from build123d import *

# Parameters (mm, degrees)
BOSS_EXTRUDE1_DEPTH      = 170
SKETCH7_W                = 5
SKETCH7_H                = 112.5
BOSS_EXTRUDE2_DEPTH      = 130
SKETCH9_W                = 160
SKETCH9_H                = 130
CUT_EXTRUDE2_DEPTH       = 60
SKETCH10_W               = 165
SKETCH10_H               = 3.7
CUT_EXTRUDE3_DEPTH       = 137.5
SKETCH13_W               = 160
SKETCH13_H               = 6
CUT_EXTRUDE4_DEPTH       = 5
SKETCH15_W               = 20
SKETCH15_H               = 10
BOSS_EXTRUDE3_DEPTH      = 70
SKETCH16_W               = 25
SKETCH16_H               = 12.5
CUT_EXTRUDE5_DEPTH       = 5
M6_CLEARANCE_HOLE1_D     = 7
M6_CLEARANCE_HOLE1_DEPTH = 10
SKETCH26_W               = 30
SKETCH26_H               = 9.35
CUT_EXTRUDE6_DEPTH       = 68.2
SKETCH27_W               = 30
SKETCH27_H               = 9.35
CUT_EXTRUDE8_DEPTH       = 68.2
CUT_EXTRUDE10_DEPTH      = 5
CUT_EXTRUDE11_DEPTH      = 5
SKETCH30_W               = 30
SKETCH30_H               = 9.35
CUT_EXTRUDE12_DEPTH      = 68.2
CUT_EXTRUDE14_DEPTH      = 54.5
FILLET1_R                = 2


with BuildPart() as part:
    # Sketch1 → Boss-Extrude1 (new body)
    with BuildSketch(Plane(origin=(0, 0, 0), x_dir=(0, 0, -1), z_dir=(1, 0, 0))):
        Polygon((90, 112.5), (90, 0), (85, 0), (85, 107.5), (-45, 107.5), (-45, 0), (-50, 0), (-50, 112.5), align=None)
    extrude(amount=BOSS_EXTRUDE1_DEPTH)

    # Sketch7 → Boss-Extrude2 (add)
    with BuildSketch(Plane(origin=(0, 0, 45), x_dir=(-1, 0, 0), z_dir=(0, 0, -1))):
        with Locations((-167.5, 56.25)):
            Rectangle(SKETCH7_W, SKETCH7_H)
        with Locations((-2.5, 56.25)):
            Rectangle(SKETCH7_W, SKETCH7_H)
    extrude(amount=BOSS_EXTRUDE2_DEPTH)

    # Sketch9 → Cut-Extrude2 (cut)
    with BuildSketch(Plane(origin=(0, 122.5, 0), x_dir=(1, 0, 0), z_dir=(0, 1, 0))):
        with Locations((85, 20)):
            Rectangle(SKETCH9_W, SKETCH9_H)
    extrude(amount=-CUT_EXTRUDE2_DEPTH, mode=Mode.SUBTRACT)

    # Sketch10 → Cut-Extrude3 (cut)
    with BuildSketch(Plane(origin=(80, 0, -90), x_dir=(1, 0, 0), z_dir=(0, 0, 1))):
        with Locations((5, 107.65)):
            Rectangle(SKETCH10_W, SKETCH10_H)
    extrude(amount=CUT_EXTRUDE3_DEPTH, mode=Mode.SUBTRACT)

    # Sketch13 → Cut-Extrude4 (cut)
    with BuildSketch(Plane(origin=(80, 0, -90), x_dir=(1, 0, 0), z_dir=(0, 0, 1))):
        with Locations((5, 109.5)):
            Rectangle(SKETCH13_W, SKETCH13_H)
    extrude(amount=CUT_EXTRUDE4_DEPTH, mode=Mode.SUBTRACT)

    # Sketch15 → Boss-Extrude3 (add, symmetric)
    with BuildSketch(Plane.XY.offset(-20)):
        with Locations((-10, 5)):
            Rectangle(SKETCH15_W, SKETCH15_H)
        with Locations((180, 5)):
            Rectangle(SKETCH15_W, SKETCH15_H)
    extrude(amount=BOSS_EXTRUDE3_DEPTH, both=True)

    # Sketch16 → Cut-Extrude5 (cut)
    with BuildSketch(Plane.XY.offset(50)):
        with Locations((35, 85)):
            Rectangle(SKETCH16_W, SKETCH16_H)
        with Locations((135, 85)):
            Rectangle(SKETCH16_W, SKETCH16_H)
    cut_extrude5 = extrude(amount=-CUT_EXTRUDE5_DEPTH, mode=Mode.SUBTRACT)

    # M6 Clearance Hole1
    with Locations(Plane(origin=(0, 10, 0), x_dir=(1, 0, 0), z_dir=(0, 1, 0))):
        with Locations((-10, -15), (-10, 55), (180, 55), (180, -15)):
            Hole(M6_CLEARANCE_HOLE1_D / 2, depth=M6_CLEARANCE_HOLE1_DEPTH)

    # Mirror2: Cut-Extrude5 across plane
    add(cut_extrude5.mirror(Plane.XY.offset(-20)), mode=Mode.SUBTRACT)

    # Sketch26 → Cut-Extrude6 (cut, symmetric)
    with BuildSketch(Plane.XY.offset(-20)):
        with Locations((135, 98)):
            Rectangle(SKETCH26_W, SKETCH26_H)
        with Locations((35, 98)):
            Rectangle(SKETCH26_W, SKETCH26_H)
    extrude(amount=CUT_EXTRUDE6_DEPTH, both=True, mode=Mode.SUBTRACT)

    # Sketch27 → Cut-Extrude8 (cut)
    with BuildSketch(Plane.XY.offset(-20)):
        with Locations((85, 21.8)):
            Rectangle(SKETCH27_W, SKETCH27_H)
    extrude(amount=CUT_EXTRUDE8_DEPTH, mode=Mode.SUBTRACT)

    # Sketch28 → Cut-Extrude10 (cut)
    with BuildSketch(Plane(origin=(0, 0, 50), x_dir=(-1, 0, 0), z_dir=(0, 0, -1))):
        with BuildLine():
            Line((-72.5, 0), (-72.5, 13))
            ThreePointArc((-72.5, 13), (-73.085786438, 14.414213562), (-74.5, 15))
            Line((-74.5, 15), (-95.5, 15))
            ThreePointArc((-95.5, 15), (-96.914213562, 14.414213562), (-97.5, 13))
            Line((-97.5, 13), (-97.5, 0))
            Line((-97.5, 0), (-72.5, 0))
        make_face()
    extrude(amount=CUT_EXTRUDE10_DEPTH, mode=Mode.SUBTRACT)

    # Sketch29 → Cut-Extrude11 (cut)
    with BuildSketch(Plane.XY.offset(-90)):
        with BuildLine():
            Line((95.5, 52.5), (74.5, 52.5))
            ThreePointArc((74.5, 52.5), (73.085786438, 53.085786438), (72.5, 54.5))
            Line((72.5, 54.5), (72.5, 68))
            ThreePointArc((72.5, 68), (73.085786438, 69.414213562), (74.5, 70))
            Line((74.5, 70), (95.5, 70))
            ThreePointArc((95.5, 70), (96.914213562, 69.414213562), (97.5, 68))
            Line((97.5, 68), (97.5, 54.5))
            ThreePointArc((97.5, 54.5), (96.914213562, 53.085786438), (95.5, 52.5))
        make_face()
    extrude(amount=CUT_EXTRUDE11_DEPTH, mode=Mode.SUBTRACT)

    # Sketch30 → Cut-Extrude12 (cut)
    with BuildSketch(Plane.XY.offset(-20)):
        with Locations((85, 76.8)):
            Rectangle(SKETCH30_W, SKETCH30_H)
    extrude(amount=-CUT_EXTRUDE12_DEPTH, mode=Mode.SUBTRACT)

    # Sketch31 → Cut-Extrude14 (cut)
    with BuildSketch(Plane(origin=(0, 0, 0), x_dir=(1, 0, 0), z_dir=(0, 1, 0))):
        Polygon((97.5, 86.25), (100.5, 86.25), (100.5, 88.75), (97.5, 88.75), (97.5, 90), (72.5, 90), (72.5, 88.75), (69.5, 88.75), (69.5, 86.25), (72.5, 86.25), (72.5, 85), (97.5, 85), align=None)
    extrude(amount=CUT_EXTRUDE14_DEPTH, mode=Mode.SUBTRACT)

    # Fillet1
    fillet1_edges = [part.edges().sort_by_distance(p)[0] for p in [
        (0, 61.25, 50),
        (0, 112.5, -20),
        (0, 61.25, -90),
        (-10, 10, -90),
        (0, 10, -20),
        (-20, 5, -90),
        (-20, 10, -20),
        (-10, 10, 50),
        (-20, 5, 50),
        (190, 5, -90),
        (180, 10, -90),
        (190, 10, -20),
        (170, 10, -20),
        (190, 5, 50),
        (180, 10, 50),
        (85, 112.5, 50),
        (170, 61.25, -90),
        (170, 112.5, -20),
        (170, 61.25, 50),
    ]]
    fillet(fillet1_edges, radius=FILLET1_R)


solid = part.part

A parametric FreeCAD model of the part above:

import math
import FreeCAD as App
import Part
import Sketcher
Q = App.Units.Quantity


def edges_at(feature, points):
    """Names of the edges that pass closest to the given points."""
    edges = feature.Shape.Edges
    near = lambda p: min(range(len(edges)), key=lambda i: edges[i].distToShape(Part.Vertex(*p))[0])
    return sorted({f"Edge{near(p) + 1}" for p in points})

doc = App.newDocument("Part")
body = doc.addObject("PartDesign::Body", "Body")

# Sketch on YZ plane
sketch1 = doc.addObject("Sketcher::SketchObject", "Sketch")
body.addObject(sketch1)
sketch1.AttachmentSupport = (doc.YZ_Plane, [""])
sketch1.MapMode = "FlatFace"
sketch1.addGeometry([
    Part.LineSegment(App.Vector(0, -90, 0), App.Vector(112, -90, 0)),  # 0
    Part.LineSegment(App.Vector(112, -90, 0), App.Vector(112, 50, 0)),  # 1
    Part.LineSegment(App.Vector(112, 50, 0), App.Vector(0, 50, 0)),  # 2
    Part.LineSegment(App.Vector(0, 50, 0), App.Vector(0, 45, 0)),  # 3
    Part.LineSegment(App.Vector(0, 45, 0), App.Vector(108, 45, 0)),  # 4
    Part.LineSegment(App.Vector(108, 45, 0), App.Vector(108, -85, 0)),  # 5
    Part.LineSegment(App.Vector(108, -85, 0), App.Vector(0, -85, 0)),  # 6
    Part.LineSegment(App.Vector(0, -85, 0), App.Vector(0, -90, 0)),  # 7
], False)
sketch1.addConstraint([
    Sketcher.Constraint("Coincident", 0, 2, 1, 1),
    Sketcher.Constraint("Coincident", 1, 2, 2, 1),
    Sketcher.Constraint("Coincident", 2, 2, 3, 1),
    Sketcher.Constraint("Coincident", 3, 2, 4, 1),
    Sketcher.Constraint("Coincident", 4, 2, 5, 1),
    Sketcher.Constraint("Coincident", 5, 2, 6, 1),
    Sketcher.Constraint("Coincident", 6, 2, 7, 1),
    Sketcher.Constraint("Coincident", 7, 2, 0, 1),
    Sketcher.Constraint("Horizontal", 0),
    Sketcher.Constraint("Vertical", 1),
    Sketcher.Constraint("Horizontal", 2),
    Sketcher.Constraint("Vertical", 3),
    Sketcher.Constraint("Horizontal", 4),
    Sketcher.Constraint("Vertical", 5),
    Sketcher.Constraint("Horizontal", 6),
    Sketcher.Constraint("Vertical", 7),
    Sketcher.Constraint("PointOnObject", 2, 2, -2),
    Sketcher.Constraint("PointOnObject", 6, 2, -2),
    Sketcher.Constraint("Equal", 3, 7),
    Sketcher.Constraint("DistanceY", 1, 1, 1, 2, Q("140 mm")),
    Sketcher.Constraint("DistanceY", 3, 2, 3, 1, Q("5 mm")),
    Sketcher.Constraint("DistanceX", 0, 1, 0, 2, Q("112.5 mm")),
    Sketcher.Constraint("DistanceX", 4, 1, 4, 2, Q("107.5 mm")),
    Sketcher.Constraint("DistanceY", 0, 2, -1, 1, Q("90 mm")),
])
pad1 = doc.addObject("PartDesign::Pad", "Pad")
body.addObject(pad1)
pad1.Profile = sketch1
pad1.Length = 170

# Sketch on XY plane
sketch2 = doc.addObject("Sketcher::SketchObject", "Sketch001")
body.addObject(sketch2)
sketch2.AttachmentSupport = (doc.XY_Plane, [""])
sketch2.MapMode = "FlatFace"
sketch2.AttachmentOffset = App.Placement(App.Vector(0, 0, 45), App.Rotation())
sketch2.addGeometry([
    Part.LineSegment(App.Vector(170, 112, 0), App.Vector(170, 0, 0)),  # 0
    Part.LineSegment(App.Vector(170, 0, 0), App.Vector(165, 0, 0)),  # 1
    Part.LineSegment(App.Vector(165, 0, 0), App.Vector(165, 112, 0)),  # 2
    Part.LineSegment(App.Vector(165, 112, 0), App.Vector(170, 112, 0)),  # 3
    Part.LineSegment(App.Vector(5, 112, 0), App.Vector(5, 0, 0)),  # 4
    Part.LineSegment(App.Vector(5, 0, 0), App.Vector(0, 0, 0)),  # 5
    Part.LineSegment(App.Vector(0, 0, 0), App.Vector(0, 112, 0)),  # 6
    Part.LineSegment(App.Vector(0, 112, 0), App.Vector(5, 112, 0)),  # 7
], False)
sketch2.addConstraint([
    Sketcher.Constraint("Coincident", 0, 2, 1, 1),
    Sketcher.Constraint("Coincident", 1, 2, 2, 1),
    Sketcher.Constraint("Coincident", 2, 2, 3, 1),
    Sketcher.Constraint("Coincident", 3, 2, 0, 1),
    Sketcher.Constraint("Coincident", 4, 2, 5, 1),
    Sketcher.Constraint("Coincident", 5, 2, 6, 1),
    Sketcher.Constraint("Coincident", 6, 2, 7, 1),
    Sketcher.Constraint("Coincident", 7, 2, 4, 1),
    Sketcher.Constraint("Vertical", 0),
    Sketcher.Constraint("Horizontal", 1),
    Sketcher.Constraint("Vertical", 2),
    Sketcher.Constraint("Horizontal", 3),
    Sketcher.Constraint("Vertical", 4),
    Sketcher.Constraint("Horizontal", 5),
    Sketcher.Constraint("Vertical", 6),
    Sketcher.Constraint("Horizontal", 7),
    Sketcher.Constraint("Coincident", 5, 2, -1, 1),
    Sketcher.Constraint("PointOnObject", 0, 2, -1),
    Sketcher.Constraint("Horizontal", 3, 2, 6, 2),
    Sketcher.Constraint("Equal", 3, 5),
    Sketcher.Constraint("DistanceX", 1, 2, 1, 1, Q("5 mm")),
    Sketcher.Constraint("DistanceY", 0, 2, 0, 1, Q("112.5 mm")),
    Sketcher.Constraint("DistanceX", -1, 1, 0, 2, Q("170 mm")),
])
pad2 = doc.addObject("PartDesign::Pad", "Pad001")
body.addObject(pad2)
pad2.Profile = sketch2
pad2.Length = 130
pad2.Reversed = True

# Sketch on XZ plane
sketch3 = doc.addObject("Sketcher::SketchObject", "Sketch002")
body.addObject(sketch3)
sketch3.AttachmentSupport = (doc.XZ_Plane, [""])
sketch3.MapMode = "FlatFace"
sketch3.AttachmentOffset = App.Placement(App.Vector(0, 0, -122.5), App.Rotation())
sketch3.addGeometry([
    Part.LineSegment(App.Vector(5, -85, 0), App.Vector(5, 45, 0)),
    Part.LineSegment(App.Vector(5, 45, 0), App.Vector(165, 45, 0)),
    Part.LineSegment(App.Vector(165, 45, 0), App.Vector(165, -85, 0)),
    Part.LineSegment(App.Vector(165, -85, 0), App.Vector(5, -85, 0)),
], False)
sketch3.addConstraint([
    Sketcher.Constraint("Coincident", 0, 2, 1, 1),
    Sketcher.Constraint("Coincident", 1, 2, 2, 1),
    Sketcher.Constraint("Coincident", 2, 2, 3, 1),
    Sketcher.Constraint("Coincident", 3, 2, 0, 1),
    Sketcher.Constraint("Vertical", 0),
    Sketcher.Constraint("Horizontal", 1),
    Sketcher.Constraint("Vertical", 2),
    Sketcher.Constraint("Horizontal", 3),
    Sketcher.Constraint("DistanceX", 1, 1, 1, 2, Q("160 mm")),
    Sketcher.Constraint("DistanceY", 0, 1, 0, 2, Q("130 mm")),
    Sketcher.Constraint("DistanceX", -1, 1, 0, 2, Q("5 mm")),
    Sketcher.Constraint("DistanceY", -1, 1, 0, 2, Q("45 mm")),
])
pocket1 = doc.addObject("PartDesign::Pocket", "Pocket")
body.addObject(pocket1)
pocket1.Profile = sketch3
pocket1.Length = 60
pocket1.Reversed = True

# Sketch on XY plane
sketch4 = doc.addObject("Sketcher::SketchObject", "Sketch003")
body.addObject(sketch4)
sketch4.AttachmentSupport = (doc.XY_Plane, [""])
sketch4.MapMode = "FlatFace"
sketch4.AttachmentOffset = App.Placement(App.Vector(0, 0, -90), App.Rotation())
sketch4.addGeometry([
    Part.LineSegment(App.Vector(2.5, 109.5, 0), App.Vector(2.5, 105.8, 0)),
    Part.LineSegment(App.Vector(2.5, 105.8, 0), App.Vector(167.5, 105.8, 0)),
    Part.LineSegment(App.Vector(167.5, 105.8, 0), App.Vector(167.5, 109.5, 0)),
    Part.LineSegment(App.Vector(167.5, 109.5, 0), App.Vector(2.5, 109.5, 0)),
], False)
sketch4.addConstraint([
    Sketcher.Constraint("Coincident", 0, 2, 1, 1),
    Sketcher.Constraint("Coincident", 1, 2, 2, 1),
    Sketcher.Constraint("Coincident", 2, 2, 3, 1),
    Sketcher.Constraint("Coincident", 3, 2, 0, 1),
    Sketcher.Constraint("Vertical", 0),
    Sketcher.Constraint("Horizontal", 1),
    Sketcher.Constraint("Vertical", 2),
    Sketcher.Constraint("Horizontal", 3),
    Sketcher.Constraint("DistanceX", 1, 1, 1, 2, Q("165 mm")),
    Sketcher.Constraint("DistanceY", 0, 2, 0, 1, Q("3.7 mm")),
    Sketcher.Constraint("DistanceX", -1, 1, 0, 2, Q("2.5 mm")),
    Sketcher.Constraint("DistanceY", -1, 1, 0, 2, Q("105.8 mm")),
])
pocket2 = doc.addObject("PartDesign::Pocket", "Pocket001")
body.addObject(pocket2)
pocket2.Profile = sketch4
pocket2.Length = 137.5
pocket2.Reversed = True

# Sketch on XY plane
sketch5 = doc.addObject("Sketcher::SketchObject", "Sketch004")
body.addObject(sketch5)
sketch5.AttachmentSupport = (doc.XY_Plane, [""])
sketch5.MapMode = "FlatFace"
sketch5.AttachmentOffset = App.Placement(App.Vector(0, 0, -90), App.Rotation())
sketch5.addGeometry([
    Part.LineSegment(App.Vector(5, 112, 0), App.Vector(5, 106, 0)),
    Part.LineSegment(App.Vector(5, 106, 0), App.Vector(165, 106, 0)),
    Part.LineSegment(App.Vector(165, 106, 0), App.Vector(165, 112, 0)),
    Part.LineSegment(App.Vector(165, 112, 0), App.Vector(5, 112, 0)),
], False)
sketch5.addConstraint([
    Sketcher.Constraint("Coincident", 0, 2, 1, 1),
    Sketcher.Constraint("Coincident", 1, 2, 2, 1),
    Sketcher.Constraint("Coincident", 2, 2, 3, 1),
    Sketcher.Constraint("Coincident", 3, 2, 0, 1),
    Sketcher.Constraint("Vertical", 0),
    Sketcher.Constraint("Horizontal", 1),
    Sketcher.Constraint("Vertical", 2),
    Sketcher.Constraint("Horizontal", 3),
    Sketcher.Constraint("DistanceX", 1, 1, 1, 2, Q("160 mm")),
    Sketcher.Constraint("DistanceY", 0, 2, 0, 1, Q("6 mm")),
    Sketcher.Constraint("DistanceX", -1, 1, 0, 2, Q("5 mm")),
    Sketcher.Constraint("DistanceY", -1, 1, 0, 2, Q("106.5 mm")),
])
pocket3 = doc.addObject("PartDesign::Pocket", "Pocket002")
body.addObject(pocket3)
pocket3.Profile = sketch5
pocket3.Length = 5
pocket3.Reversed = True

# Sketch on XY plane
sketch6 = doc.addObject("Sketcher::SketchObject", "Sketch005")
body.addObject(sketch6)
sketch6.AttachmentSupport = (doc.XY_Plane, [""])
sketch6.MapMode = "FlatFace"
sketch6.AttachmentOffset = App.Placement(App.Vector(0, 0, -20), App.Rotation())
sketch6.addGeometry([
    Part.LineSegment(App.Vector(-20, 10, 0), App.Vector(-20, 0, 0)),  # 0
    Part.LineSegment(App.Vector(-20, 0, 0), App.Vector(0, 0, 0)),  # 1
    Part.LineSegment(App.Vector(0, 0, 0), App.Vector(0, 10, 0)),  # 2
    Part.LineSegment(App.Vector(0, 10, 0), App.Vector(-20, 10, 0)),  # 3
    Part.LineSegment(App.Vector(170, 10, 0), App.Vector(170, 0, 0)),  # 4
    Part.LineSegment(App.Vector(170, 0, 0), App.Vector(190, 0, 0)),  # 5
    Part.LineSegment(App.Vector(190, 0, 0), App.Vector(190, 10, 0)),  # 6
    Part.LineSegment(App.Vector(190, 10, 0), App.Vector(170, 10, 0)),  # 7
], False)
sketch6.addConstraint([
    Sketcher.Constraint("Coincident", 0, 2, 1, 1),
    Sketcher.Constraint("Coincident", 1, 2, 2, 1),
    Sketcher.Constraint("Coincident", 2, 2, 3, 1),
    Sketcher.Constraint("Coincident", 3, 2, 0, 1),
    Sketcher.Constraint("Coincident", 4, 2, 5, 1),
    Sketcher.Constraint("Coincident", 5, 2, 6, 1),
    Sketcher.Constraint("Coincident", 6, 2, 7, 1),
    Sketcher.Constraint("Coincident", 7, 2, 4, 1),
    Sketcher.Constraint("Vertical", 0),
    Sketcher.Constraint("Horizontal", 1),
    Sketcher.Constraint("Vertical", 2),
    Sketcher.Constraint("Horizontal", 3),
    Sketcher.Constraint("Vertical", 4),
    Sketcher.Constraint("Horizontal", 5),
    Sketcher.Constraint("Vertical", 6),
    Sketcher.Constraint("Horizontal", 7),
    Sketcher.Constraint("Coincident", 1, 2, -1, 1),
    Sketcher.Constraint("PointOnObject", 4, 2, -1),
    Sketcher.Constraint("Horizontal", 3, 2, 6, 2),
    Sketcher.Constraint("Equal", 3, 5),
    Sketcher.Constraint("DistanceX", 1, 1, 1, 2, Q("20 mm")),
    Sketcher.Constraint("DistanceY", 0, 2, 0, 1, Q("10 mm")),
    Sketcher.Constraint("DistanceX", -1, 1, 4, 2, Q("170 mm")),
])
pad3 = doc.addObject("PartDesign::Pad", "Pad002")
body.addObject(pad3)
pad3.Profile = sketch6
pad3.Length = 140
pad3.Midplane = True

# Sketch on XY plane
sketch7 = doc.addObject("Sketcher::SketchObject", "Sketch006")
body.addObject(sketch7)
sketch7.AttachmentSupport = (doc.XY_Plane, [""])
sketch7.MapMode = "FlatFace"
sketch7.AttachmentOffset = App.Placement(App.Vector(0, 0, 50), App.Rotation())
sketch7.addGeometry([
    Part.LineSegment(App.Vector(22, 91, 0), App.Vector(22, 79, 0)),  # 0
    Part.LineSegment(App.Vector(22, 79, 0), App.Vector(48, 79, 0)),  # 1
    Part.LineSegment(App.Vector(48, 79, 0), App.Vector(48, 91, 0)),  # 2
    Part.LineSegment(App.Vector(48, 91, 0), App.Vector(22, 91, 0)),  # 3
    Part.LineSegment(App.Vector(122, 91, 0), App.Vector(122, 79, 0)),  # 4
    Part.LineSegment(App.Vector(122, 79, 0), App.Vector(148, 79, 0)),  # 5
    Part.LineSegment(App.Vector(148, 79, 0), App.Vector(148, 91, 0)),  # 6
    Part.LineSegment(App.Vector(148, 91, 0), App.Vector(122, 91, 0)),  # 7
], False)
sketch7.addConstraint([
    Sketcher.Constraint("Coincident", 0, 2, 1, 1),
    Sketcher.Constraint("Coincident", 1, 2, 2, 1),
    Sketcher.Constraint("Coincident", 2, 2, 3, 1),
    Sketcher.Constraint("Coincident", 3, 2, 0, 1),
    Sketcher.Constraint("Coincident", 4, 2, 5, 1),
    Sketcher.Constraint("Coincident", 5, 2, 6, 1),
    Sketcher.Constraint("Coincident", 6, 2, 7, 1),
    Sketcher.Constraint("Coincident", 7, 2, 4, 1),
    Sketcher.Constraint("Vertical", 0),
    Sketcher.Constraint("Horizontal", 1),
    Sketcher.Constraint("Vertical", 2),
    Sketcher.Constraint("Horizontal", 3),
    Sketcher.Constraint("Vertical", 4),
    Sketcher.Constraint("Horizontal", 5),
    Sketcher.Constraint("Vertical", 6),
    Sketcher.Constraint("Horizontal", 7),
    Sketcher.Constraint("Horizontal", 1, 2, 4, 2),
    Sketcher.Constraint("Horizontal", 3, 2, 6, 2),
    Sketcher.Constraint("Equal", 3, 5),
    Sketcher.Constraint("DistanceX", 1, 1, 1, 2, Q("25 mm")),
    Sketcher.Constraint("DistanceY", 0, 2, 0, 1, Q("12.5 mm")),
    Sketcher.Constraint("DistanceX", 1, 2, 4, 2, Q("75 mm")),
    Sketcher.Constraint("DistanceX", -1, 1, 0, 2, Q("22.5 mm")),
    Sketcher.Constraint("DistanceY", -1, 1, 0, 2, Q("78.75 mm")),
])
pocket4 = doc.addObject("PartDesign::Pocket", "Pocket003")
body.addObject(pocket4)
pocket4.Profile = sketch7
pocket4.Length = 5

# Sketch on XZ plane
sketch8 = doc.addObject("Sketcher::SketchObject", "Sketch007")
body.addObject(sketch8)
sketch8.AttachmentSupport = (doc.XZ_Plane, [""])
sketch8.MapMode = "FlatFace"
sketch8.AttachmentOffset = App.Placement(App.Vector(0, 0, -10), App.Rotation())
sketch8.addGeometry([
    Part.Circle(App.Vector(-10, 15, 0), App.Vector(0, 0, 1), 3.5),
    Part.Circle(App.Vector(-10, -55, 0), App.Vector(0, 0, 1), 3.5),
    Part.Circle(App.Vector(180, -55, 0), App.Vector(0, 0, 1), 3.5),
    Part.Circle(App.Vector(180, 15, 0), App.Vector(0, 0, 1), 3.5),
], False)
sketch8.addConstraint([
    Sketcher.Constraint("Equal", 0, 1),
    Sketcher.Constraint("Equal", 1, 2),
    Sketcher.Constraint("Equal", 2, 3),
    Sketcher.Constraint("Horizontal", 1, 3, 2, 3),
    Sketcher.Constraint("Horizontal", 0, 3, 3, 3),
    Sketcher.Constraint("Vertical", 0, 3, 1, 3),
    Sketcher.Constraint("Vertical", 2, 3, 3, 3),
    Sketcher.Constraint("Diameter", 0, Q("7 mm")),
    Sketcher.Constraint("DistanceX", 0, 3, -1, 1, Q("10 mm")),
    Sketcher.Constraint("DistanceY", -1, 1, 0, 3, Q("15 mm")),
    Sketcher.Constraint("DistanceY", 1, 3, -1, 1, Q("55 mm")),
    Sketcher.Constraint("DistanceX", -1, 1, 2, 3, Q("180 mm")),
])
doc.recompute()
hole = doc.addObject("PartDesign::Hole", "Hole")
body.addObject(hole)
hole.Profile = sketch8
hole.ThreadType = "None"
hole.Diameter = 7
hole.DepthType = "Dimension"
hole.Depth = 10
hole.DrillPoint = "Flat"
hole.Reversed = True
doc.recompute()

datumplane = doc.addObject("PartDesign::Plane", "DatumPlane")
body.addObject(datumplane)
datumplane.AttachmentSupport = (doc.XY_Plane, [""])
datumplane.MapMode = "FlatFace"
datumplane.AttachmentOffset = App.Placement(App.Vector(0, 0, -20), App.Rotation())
mirrored = doc.addObject("PartDesign::Mirrored", "Mirrored")
body.addObject(mirrored)
mirrored.Originals = [pocket4]
mirrored.MirrorPlane = (datumplane, [""])
body.Tip = mirrored

# Sketch on XY plane
sketch9 = doc.addObject("Sketcher::SketchObject", "Sketch008")
body.addObject(sketch9)
sketch9.AttachmentSupport = (doc.XY_Plane, [""])
sketch9.MapMode = "FlatFace"
sketch9.AttachmentOffset = App.Placement(App.Vector(0, 0, -20), App.Rotation())
sketch9.addGeometry([
    Part.LineSegment(App.Vector(120, 103, 0), App.Vector(120, 93, 0)),  # 0
    Part.LineSegment(App.Vector(120, 93, 0), App.Vector(150, 93, 0)),  # 1
    Part.LineSegment(App.Vector(150, 93, 0), App.Vector(150, 103, 0)),  # 2
    Part.LineSegment(App.Vector(150, 103, 0), App.Vector(120, 103, 0)),  # 3
    Part.LineSegment(App.Vector(20, 103, 0), App.Vector(20, 93, 0)),  # 4
    Part.LineSegment(App.Vector(20, 93, 0), App.Vector(50, 93, 0)),  # 5
    Part.LineSegment(App.Vector(50, 93, 0), App.Vector(50, 103, 0)),  # 6
    Part.LineSegment(App.Vector(50, 103, 0), App.Vector(20, 103, 0)),  # 7
], False)
sketch9.addConstraint([
    Sketcher.Constraint("Coincident", 0, 2, 1, 1),
    Sketcher.Constraint("Coincident", 1, 2, 2, 1),
    Sketcher.Constraint("Coincident", 2, 2, 3, 1),
    Sketcher.Constraint("Coincident", 3, 2, 0, 1),
    Sketcher.Constraint("Coincident", 4, 2, 5, 1),
    Sketcher.Constraint("Coincident", 5, 2, 6, 1),
    Sketcher.Constraint("Coincident", 6, 2, 7, 1),
    Sketcher.Constraint("Coincident", 7, 2, 4, 1),
    Sketcher.Constraint("Vertical", 0),
    Sketcher.Constraint("Horizontal", 1),
    Sketcher.Constraint("Vertical", 2),
    Sketcher.Constraint("Horizontal", 3),
    Sketcher.Constraint("Vertical", 4),
    Sketcher.Constraint("Horizontal", 5),
    Sketcher.Constraint("Vertical", 6),
    Sketcher.Constraint("Horizontal", 7),
    Sketcher.Constraint("Horizontal", 1, 2, 4, 2),
    Sketcher.Constraint("Horizontal", 3, 2, 6, 2),
    Sketcher.Constraint("Equal", 3, 5),
    Sketcher.Constraint("DistanceX", 1, 1, 1, 2, Q("30 mm")),
    Sketcher.Constraint("DistanceX", -1, 1, 0, 2, Q("120 mm")),
    Sketcher.Constraint("DistanceX", -1, 1, 4, 2, Q("20 mm")),
    Sketcher.Constraint("DistanceY", 0, 2, 0, 1, Q("9.35 mm")),
    Sketcher.Constraint("DistanceY", -1, 1, 0, 2, Q("93.325 mm")),
])
pocket5 = doc.addObject("PartDesign::Pocket", "Pocket004")
body.addObject(pocket5)
pocket5.Profile = sketch9
pocket5.Length = 136.4
pocket5.Midplane = True

# Sketch on XY plane
sketch10 = doc.addObject("Sketcher::SketchObject", "Sketch009")
body.addObject(sketch10)
sketch10.AttachmentSupport = (doc.XY_Plane, [""])
sketch10.MapMode = "FlatFace"
sketch10.AttachmentOffset = App.Placement(App.Vector(0, 0, -20), App.Rotation())
sketch10.addGeometry([
    Part.LineSegment(App.Vector(70, 26, 0), App.Vector(70, 17, 0)),
    Part.LineSegment(App.Vector(70, 17, 0), App.Vector(100, 17, 0)),
    Part.LineSegment(App.Vector(100, 17, 0), App.Vector(100, 26, 0)),
    Part.LineSegment(App.Vector(100, 26, 0), App.Vector(70, 26, 0)),
], False)
sketch10.addConstraint([
    Sketcher.Constraint("Coincident", 0, 2, 1, 1),
    Sketcher.Constraint("Coincident", 1, 2, 2, 1),
    Sketcher.Constraint("Coincident", 2, 2, 3, 1),
    Sketcher.Constraint("Coincident", 3, 2, 0, 1),
    Sketcher.Constraint("Vertical", 0),
    Sketcher.Constraint("Horizontal", 1),
    Sketcher.Constraint("Vertical", 2),
    Sketcher.Constraint("Horizontal", 3),
    Sketcher.Constraint("DistanceX", 1, 1, 1, 2, Q("30 mm")),
    Sketcher.Constraint("DistanceX", -1, 1, 0, 2, Q("70 mm")),
    Sketcher.Constraint("DistanceY", 0, 2, 0, 1, Q("9.35 mm")),
    Sketcher.Constraint("DistanceY", -1, 1, 0, 2, Q("17.125 mm")),
])
pocket6 = doc.addObject("PartDesign::Pocket", "Pocket005")
body.addObject(pocket6)
pocket6.Profile = sketch10
pocket6.Length = 68.2
pocket6.Reversed = True

# Sketch on XY plane
sketch11 = doc.addObject("Sketcher::SketchObject", "Sketch010")
body.addObject(sketch11)
sketch11.AttachmentSupport = (doc.XY_Plane, [""])
sketch11.MapMode = "FlatFace"
sketch11.AttachmentOffset = App.Placement(App.Vector(0, 0, 50), App.Rotation())
sketch11.addGeometry([
    Part.LineSegment(App.Vector(72.5, 0, 0), App.Vector(72.5, 13, 0)),  # 0
    Part.ArcOfCircle(Part.Circle(App.Vector(74.5, 13, 0), App.Vector(0, 0, 1), 2), math.radians(90), math.radians(180)),  # 1
    Part.LineSegment(App.Vector(74.5, 15, 0), App.Vector(95.5, 15, 0)),  # 2
    Part.ArcOfCircle(Part.Circle(App.Vector(95.5, 13, 0), App.Vector(0, 0, 1), 2), math.radians(0), math.radians(90)),  # 3
    Part.LineSegment(App.Vector(97.5, 13, 0), App.Vector(97.5, 0, 0)),  # 4
    Part.LineSegment(App.Vector(97.5, 0, 0), App.Vector(72.5, 0, 0)),  # 5
], False)
sketch11.addConstraint([
    Sketcher.Constraint("Tangent", 0, 2, 1, 2),
    Sketcher.Constraint("Tangent", 1, 1, 2, 1),
    Sketcher.Constraint("Tangent", 2, 2, 3, 2),
    Sketcher.Constraint("Tangent", 3, 1, 4, 1),
    Sketcher.Constraint("Coincident", 4, 2, 5, 1),
    Sketcher.Constraint("Coincident", 5, 2, 0, 1),
    Sketcher.Constraint("Vertical", 0),
    Sketcher.Constraint("Horizontal", 2),
    Sketcher.Constraint("Vertical", 4),
    Sketcher.Constraint("Horizontal", 5),
    Sketcher.Constraint("Equal", 1, 3),
    Sketcher.Constraint("PointOnObject", 4, 2, -1),
    Sketcher.Constraint("Radius", 1, Q("2 mm")),
    Sketcher.Constraint("DistanceX", 2, 1, 2, 2, Q("21 mm")),
    Sketcher.Constraint("DistanceY", 0, 1, 0, 2, Q("13 mm")),
    Sketcher.Constraint("DistanceX", -1, 1, 1, 3, Q("74.5 mm")),
])
pocket7 = doc.addObject("PartDesign::Pocket", "Pocket006")
body.addObject(pocket7)
pocket7.Profile = sketch11
pocket7.Length = 5

# Sketch on XY plane
sketch12 = doc.addObject("Sketcher::SketchObject", "Sketch011")
body.addObject(sketch12)
sketch12.AttachmentSupport = (doc.XY_Plane, [""])
sketch12.MapMode = "FlatFace"
sketch12.AttachmentOffset = App.Placement(App.Vector(0, 0, -90), App.Rotation())
sketch12.addGeometry([
    Part.LineSegment(App.Vector(74.5, 52.5, 0), App.Vector(95.5, 52.5, 0)),  # 0
    Part.ArcOfCircle(Part.Circle(App.Vector(95.5, 54.5, 0), App.Vector(0, 0, 1), 2), math.radians(-90), math.radians(0)),  # 1
    Part.LineSegment(App.Vector(97.5, 54.5, 0), App.Vector(97.5, 68, 0)),  # 2
    Part.ArcOfCircle(Part.Circle(App.Vector(95.5, 68, 0), App.Vector(0, 0, 1), 2), math.radians(0), math.radians(90)),  # 3
    Part.LineSegment(App.Vector(95.5, 70, 0), App.Vector(74.5, 70, 0)),  # 4
    Part.ArcOfCircle(Part.Circle(App.Vector(74.5, 68, 0), App.Vector(0, 0, 1), 2), math.radians(90), math.radians(180)),  # 5
    Part.LineSegment(App.Vector(72.5, 68, 0), App.Vector(72.5, 54.5, 0)),  # 6
    Part.ArcOfCircle(Part.Circle(App.Vector(74.5, 54.5, 0), App.Vector(0, 0, 1), 2), math.radians(-180), math.radians(-90)),  # 7
], False)
sketch12.addConstraint([
    Sketcher.Constraint("Tangent", 0, 2, 1, 1),
    Sketcher.Constraint("Tangent", 1, 2, 2, 1),
    Sketcher.Constraint("Tangent", 2, 2, 3, 1),
    Sketcher.Constraint("Tangent", 3, 2, 4, 1),
    Sketcher.Constraint("Tangent", 4, 2, 5, 1),
    Sketcher.Constraint("Tangent", 5, 2, 6, 1),
    Sketcher.Constraint("Tangent", 6, 2, 7, 1),
    Sketcher.Constraint("Tangent", 7, 2, 0, 1),
    Sketcher.Constraint("Horizontal", 0),
    Sketcher.Constraint("Vertical", 2),
    Sketcher.Constraint("Horizontal", 4),
    Sketcher.Constraint("Vertical", 6),
    Sketcher.Constraint("Equal", 1, 3),
    Sketcher.Constraint("Equal", 3, 5),
    Sketcher.Constraint("Equal", 5, 7),
    Sketcher.Constraint("Radius", 1, Q("2 mm")),
    Sketcher.Constraint("DistanceX", 0, 1, 0, 2, Q("21 mm")),
    Sketcher.Constraint("DistanceY", 2, 1, 2, 2, Q("13.5 mm")),
    Sketcher.Constraint("DistanceY", -1, 1, 3, 3, Q("68 mm")),
    Sketcher.Constraint("DistanceX", -1, 1, 1, 3, Q("95.5 mm")),
])
pocket8 = doc.addObject("PartDesign::Pocket", "Pocket007")
body.addObject(pocket8)
pocket8.Profile = sketch12
pocket8.Length = 5
pocket8.Reversed = True

# Sketch on XY plane
sketch13 = doc.addObject("Sketcher::SketchObject", "Sketch012")
body.addObject(sketch13)
sketch13.AttachmentSupport = (doc.XY_Plane, [""])
sketch13.MapMode = "FlatFace"
sketch13.AttachmentOffset = App.Placement(App.Vector(0, 0, -20), App.Rotation())
sketch13.addGeometry([
    Part.LineSegment(App.Vector(70, 81, 0), App.Vector(70, 72, 0)),
    Part.LineSegment(App.Vector(70, 72, 0), App.Vector(100, 72, 0)),
    Part.LineSegment(App.Vector(100, 72, 0), App.Vector(100, 81, 0)),
    Part.LineSegment(App.Vector(100, 81, 0), App.Vector(70, 81, 0)),
], False)
sketch13.addConstraint([
    Sketcher.Constraint("Coincident", 0, 2, 1, 1),
    Sketcher.Constraint("Coincident", 1, 2, 2, 1),
    Sketcher.Constraint("Coincident", 2, 2, 3, 1),
    Sketcher.Constraint("Coincident", 3, 2, 0, 1),
    Sketcher.Constraint("Vertical", 0),
    Sketcher.Constraint("Horizontal", 1),
    Sketcher.Constraint("Vertical", 2),
    Sketcher.Constraint("Horizontal", 3),
    Sketcher.Constraint("DistanceX", 1, 1, 1, 2, Q("30 mm")),
    Sketcher.Constraint("DistanceX", -1, 1, 0, 2, Q("70 mm")),
    Sketcher.Constraint("DistanceY", 0, 2, 0, 1, Q("9.35 mm")),
    Sketcher.Constraint("DistanceY", -1, 1, 0, 2, Q("72.125 mm")),
])
pocket9 = doc.addObject("PartDesign::Pocket", "Pocket008")
body.addObject(pocket9)
pocket9.Profile = sketch13
pocket9.Length = 68.2

# Sketch on XZ plane
sketch14 = doc.addObject("Sketcher::SketchObject", "Sketch013")
body.addObject(sketch14)
sketch14.AttachmentSupport = (doc.XZ_Plane, [""])
sketch14.MapMode = "FlatFace"
sketch14.addGeometry([
    Part.LineSegment(App.Vector(97.5, -86.2, 0), App.Vector(100.5, -86.2, 0)),  # 0
    Part.LineSegment(App.Vector(100.5, -86.2, 0), App.Vector(100.5, -88.8, 0)),  # 1
    Part.LineSegment(App.Vector(100.5, -88.8, 0), App.Vector(97.5, -88.8, 0)),  # 2
    Part.LineSegment(App.Vector(97.5, -88.8, 0), App.Vector(97.5, -90, 0)),  # 3
    Part.LineSegment(App.Vector(97.5, -90, 0), App.Vector(72.5, -90, 0)),  # 4
    Part.LineSegment(App.Vector(72.5, -90, 0), App.Vector(72.5, -88.8, 0)),  # 5
    Part.LineSegment(App.Vector(72.5, -88.8, 0), App.Vector(69.5, -88.8, 0)),  # 6
    Part.LineSegment(App.Vector(69.5, -88.8, 0), App.Vector(69.5, -86.2, 0)),  # 7
    Part.LineSegment(App.Vector(69.5, -86.2, 0), App.Vector(72.5, -86.2, 0)),  # 8
    Part.LineSegment(App.Vector(72.5, -86.2, 0), App.Vector(72.5, -85, 0)),  # 9
    Part.LineSegment(App.Vector(72.5, -85, 0), App.Vector(97.5, -85, 0)),  # 10
    Part.LineSegment(App.Vector(97.5, -85, 0), App.Vector(97.5, -86.2, 0)),  # 11
], False)
sketch14.addConstraint([
    Sketcher.Constraint("Coincident", 0, 2, 1, 1),
    Sketcher.Constraint("Coincident", 1, 2, 2, 1),
    Sketcher.Constraint("Coincident", 2, 2, 3, 1),
    Sketcher.Constraint("Coincident", 3, 2, 4, 1),
    Sketcher.Constraint("Coincident", 4, 2, 5, 1),
    Sketcher.Constraint("Coincident", 5, 2, 6, 1),
    Sketcher.Constraint("Coincident", 6, 2, 7, 1),
    Sketcher.Constraint("Coincident", 7, 2, 8, 1),
    Sketcher.Constraint("Coincident", 8, 2, 9, 1),
    Sketcher.Constraint("Coincident", 9, 2, 10, 1),
    Sketcher.Constraint("Coincident", 10, 2, 11, 1),
    Sketcher.Constraint("Coincident", 11, 2, 0, 1),
    Sketcher.Constraint("Horizontal", 0),
    Sketcher.Constraint("Vertical", 1),
    Sketcher.Constraint("Horizontal", 2),
    Sketcher.Constraint("Vertical", 3),
    Sketcher.Constraint("Horizontal", 4),
    Sketcher.Constraint("Vertical", 5),
    Sketcher.Constraint("Horizontal", 6),
    Sketcher.Constraint("Vertical", 7),
    Sketcher.Constraint("Horizontal", 8),
    Sketcher.Constraint("Vertical", 9),
    Sketcher.Constraint("Horizontal", 10),
    Sketcher.Constraint("Vertical", 11),
    Sketcher.Constraint("Horizontal", 2, 2, 5, 2),
    Sketcher.Constraint("Horizontal", 0, 2, 7, 2),
    Sketcher.Constraint("Vertical", 5, 2, 8, 2),
    Sketcher.Constraint("Vertical", 3, 2, 10, 2),
    Sketcher.Constraint("Equal", 2, 6),
    Sketcher.Constraint("Equal", 5, 9),
    Sketcher.Constraint("DistanceX", 0, 1, 0, 2, Q("3 mm")),
    Sketcher.Constraint("DistanceX", 4, 2, 4, 1, Q("25 mm")),
    Sketcher.Constraint("DistanceY", 1, 2, 1, 1, Q("2.5 mm")),
    Sketcher.Constraint("DistanceY", 3, 2, -1, 1, Q("90 mm")),
    Sketcher.Constraint("DistanceY", 9, 2, -1, 1, Q("85 mm")),
    Sketcher.Constraint("DistanceX", -1, 1, 0, 2, Q("100.5 mm")),
])
pocket10 = doc.addObject("PartDesign::Pocket", "Pocket009")
body.addObject(pocket10)
pocket10.Profile = sketch14
pocket10.Length = 54.5
doc.recompute()

fillet = doc.addObject("PartDesign::Fillet", "Fillet")
body.addObject(fillet)
fillet.Base = (pocket10, edges_at(pocket10, [
    (0, 61.25, 50),
    (0, 112.5, -20),
    (0, 61.25, -90),
    (-10, 10, -90),
    (0, 10, -20),
    (-20, 5, -90),
    (-20, 10, -20),
    (-10, 10, 50),
    (-20, 5, 50),
    (190, 5, -90),
    (180, 10, -90),
    (190, 10, -20),
    (170, 10, -20),
    (190, 5, 50),
    (180, 10, 50),
    (85, 112.5, 50),
    (170, 61.25, -90),
    (170, 112.5, -20),
    (170, 61.25, 50),
]))
fillet.Radius = 2

doc.recompute()
